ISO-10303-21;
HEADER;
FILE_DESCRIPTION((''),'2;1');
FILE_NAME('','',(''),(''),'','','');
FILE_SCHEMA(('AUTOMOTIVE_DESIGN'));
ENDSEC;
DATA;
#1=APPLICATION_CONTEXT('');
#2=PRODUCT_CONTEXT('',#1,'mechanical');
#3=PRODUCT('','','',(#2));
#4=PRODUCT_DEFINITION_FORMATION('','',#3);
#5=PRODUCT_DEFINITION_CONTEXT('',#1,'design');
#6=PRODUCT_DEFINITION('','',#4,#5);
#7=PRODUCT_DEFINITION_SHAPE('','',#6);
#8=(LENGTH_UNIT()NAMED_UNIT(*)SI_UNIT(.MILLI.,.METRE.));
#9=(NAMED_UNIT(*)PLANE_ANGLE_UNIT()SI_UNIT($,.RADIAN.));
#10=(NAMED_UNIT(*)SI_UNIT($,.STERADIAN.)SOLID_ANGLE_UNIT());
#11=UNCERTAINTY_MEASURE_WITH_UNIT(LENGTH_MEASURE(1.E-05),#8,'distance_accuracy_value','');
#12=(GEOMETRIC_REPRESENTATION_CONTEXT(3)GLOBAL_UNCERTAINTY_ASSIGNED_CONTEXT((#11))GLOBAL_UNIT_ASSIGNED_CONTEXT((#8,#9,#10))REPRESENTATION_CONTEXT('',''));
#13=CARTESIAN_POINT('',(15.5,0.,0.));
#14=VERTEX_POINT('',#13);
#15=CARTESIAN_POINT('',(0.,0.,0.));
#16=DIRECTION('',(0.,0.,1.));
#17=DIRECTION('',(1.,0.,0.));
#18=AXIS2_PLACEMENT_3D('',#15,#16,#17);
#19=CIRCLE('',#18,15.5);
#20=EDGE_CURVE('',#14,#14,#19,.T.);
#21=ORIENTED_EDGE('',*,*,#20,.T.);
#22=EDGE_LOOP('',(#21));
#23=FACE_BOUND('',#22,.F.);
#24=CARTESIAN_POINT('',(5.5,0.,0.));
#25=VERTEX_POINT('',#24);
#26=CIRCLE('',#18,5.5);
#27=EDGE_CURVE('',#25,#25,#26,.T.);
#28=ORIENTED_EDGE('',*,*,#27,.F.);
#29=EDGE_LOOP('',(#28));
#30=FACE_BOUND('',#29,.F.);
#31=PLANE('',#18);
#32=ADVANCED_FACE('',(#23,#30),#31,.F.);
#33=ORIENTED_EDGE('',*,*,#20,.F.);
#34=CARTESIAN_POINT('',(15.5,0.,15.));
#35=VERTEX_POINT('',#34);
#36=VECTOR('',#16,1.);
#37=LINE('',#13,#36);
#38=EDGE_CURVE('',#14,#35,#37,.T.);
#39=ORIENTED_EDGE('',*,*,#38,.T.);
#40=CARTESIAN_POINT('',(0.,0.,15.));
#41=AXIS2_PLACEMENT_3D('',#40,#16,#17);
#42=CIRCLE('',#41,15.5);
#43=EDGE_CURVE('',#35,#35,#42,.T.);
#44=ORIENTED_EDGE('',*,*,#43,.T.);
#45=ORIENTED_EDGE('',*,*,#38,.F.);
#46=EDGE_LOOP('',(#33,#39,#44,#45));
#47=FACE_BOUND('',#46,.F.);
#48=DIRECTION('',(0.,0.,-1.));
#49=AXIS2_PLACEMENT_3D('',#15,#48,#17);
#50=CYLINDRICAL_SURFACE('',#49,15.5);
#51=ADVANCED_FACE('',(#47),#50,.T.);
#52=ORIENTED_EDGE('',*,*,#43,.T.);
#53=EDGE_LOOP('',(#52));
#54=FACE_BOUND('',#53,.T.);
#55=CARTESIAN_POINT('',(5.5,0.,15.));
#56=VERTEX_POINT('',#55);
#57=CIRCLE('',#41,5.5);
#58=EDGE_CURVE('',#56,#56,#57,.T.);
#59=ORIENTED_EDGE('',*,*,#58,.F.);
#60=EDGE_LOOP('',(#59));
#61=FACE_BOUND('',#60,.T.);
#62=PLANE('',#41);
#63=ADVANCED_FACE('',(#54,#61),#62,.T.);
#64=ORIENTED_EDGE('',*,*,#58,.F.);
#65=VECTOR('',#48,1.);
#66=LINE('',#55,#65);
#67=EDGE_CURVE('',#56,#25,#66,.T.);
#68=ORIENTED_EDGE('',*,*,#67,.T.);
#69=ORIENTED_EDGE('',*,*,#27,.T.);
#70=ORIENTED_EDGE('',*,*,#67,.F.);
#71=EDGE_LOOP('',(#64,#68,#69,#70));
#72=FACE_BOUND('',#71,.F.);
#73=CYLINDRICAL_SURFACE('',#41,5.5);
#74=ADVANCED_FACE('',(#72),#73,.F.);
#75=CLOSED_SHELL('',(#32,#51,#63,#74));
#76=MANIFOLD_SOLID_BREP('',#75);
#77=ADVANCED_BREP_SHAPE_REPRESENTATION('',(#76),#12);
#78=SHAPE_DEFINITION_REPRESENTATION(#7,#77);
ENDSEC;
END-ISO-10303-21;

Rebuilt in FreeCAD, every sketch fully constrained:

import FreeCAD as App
import Part
import Sketcher

V = App.Vector
Q = App.Units.Quantity

doc = App.newDocument("Part")
body = doc.addObject("PartDesign::Body", "Body")

sketch1 = body.newObject("Sketcher::SketchObject", "Sketch")
sketch1.AttachmentSupport = (doc.getObject("XY_Plane"), [""])
sketch1.MapMode = "FlatFace"
sketch1.addGeometry(Part.Circle(V(0, 0, 0), V(0, 0, 1), 15.5), False)
sketch1.addConstraint([
    Sketcher.Constraint("Coincident", 0, 3, -1, 1),
    Sketcher.Constraint("Diameter", 0, Q("31 mm")),
])
pad1 = body.newObject("PartDesign::Pad", "Pad")
pad1.Profile = sketch1
pad1.Length = 15

sketch2 = body.newObject("Sketcher::SketchObject", "Sketch001")
sketch2.AttachmentSupport = (doc.getObject("XY_Plane"), [""])
sketch2.MapMode = "FlatFace"
sketch2.AttachmentOffset = App.Placement(V(0, 0, 15), App.Rotation())
sketch2.addGeometry(Part.Circle(V(0, 0, 0), V(0, 0, 1), 5.5), False)
sketch2.addConstraint([
    Sketcher.Constraint("Coincident", 0, 3, -1, 1),
    Sketcher.Constraint("Diameter", 0, Q("11 mm")),
])
pocket1 = body.newObject("PartDesign::Pocket", "Pocket")
pocket1.Profile = sketch2
pocket1.Length = 21

doc.recompute()
